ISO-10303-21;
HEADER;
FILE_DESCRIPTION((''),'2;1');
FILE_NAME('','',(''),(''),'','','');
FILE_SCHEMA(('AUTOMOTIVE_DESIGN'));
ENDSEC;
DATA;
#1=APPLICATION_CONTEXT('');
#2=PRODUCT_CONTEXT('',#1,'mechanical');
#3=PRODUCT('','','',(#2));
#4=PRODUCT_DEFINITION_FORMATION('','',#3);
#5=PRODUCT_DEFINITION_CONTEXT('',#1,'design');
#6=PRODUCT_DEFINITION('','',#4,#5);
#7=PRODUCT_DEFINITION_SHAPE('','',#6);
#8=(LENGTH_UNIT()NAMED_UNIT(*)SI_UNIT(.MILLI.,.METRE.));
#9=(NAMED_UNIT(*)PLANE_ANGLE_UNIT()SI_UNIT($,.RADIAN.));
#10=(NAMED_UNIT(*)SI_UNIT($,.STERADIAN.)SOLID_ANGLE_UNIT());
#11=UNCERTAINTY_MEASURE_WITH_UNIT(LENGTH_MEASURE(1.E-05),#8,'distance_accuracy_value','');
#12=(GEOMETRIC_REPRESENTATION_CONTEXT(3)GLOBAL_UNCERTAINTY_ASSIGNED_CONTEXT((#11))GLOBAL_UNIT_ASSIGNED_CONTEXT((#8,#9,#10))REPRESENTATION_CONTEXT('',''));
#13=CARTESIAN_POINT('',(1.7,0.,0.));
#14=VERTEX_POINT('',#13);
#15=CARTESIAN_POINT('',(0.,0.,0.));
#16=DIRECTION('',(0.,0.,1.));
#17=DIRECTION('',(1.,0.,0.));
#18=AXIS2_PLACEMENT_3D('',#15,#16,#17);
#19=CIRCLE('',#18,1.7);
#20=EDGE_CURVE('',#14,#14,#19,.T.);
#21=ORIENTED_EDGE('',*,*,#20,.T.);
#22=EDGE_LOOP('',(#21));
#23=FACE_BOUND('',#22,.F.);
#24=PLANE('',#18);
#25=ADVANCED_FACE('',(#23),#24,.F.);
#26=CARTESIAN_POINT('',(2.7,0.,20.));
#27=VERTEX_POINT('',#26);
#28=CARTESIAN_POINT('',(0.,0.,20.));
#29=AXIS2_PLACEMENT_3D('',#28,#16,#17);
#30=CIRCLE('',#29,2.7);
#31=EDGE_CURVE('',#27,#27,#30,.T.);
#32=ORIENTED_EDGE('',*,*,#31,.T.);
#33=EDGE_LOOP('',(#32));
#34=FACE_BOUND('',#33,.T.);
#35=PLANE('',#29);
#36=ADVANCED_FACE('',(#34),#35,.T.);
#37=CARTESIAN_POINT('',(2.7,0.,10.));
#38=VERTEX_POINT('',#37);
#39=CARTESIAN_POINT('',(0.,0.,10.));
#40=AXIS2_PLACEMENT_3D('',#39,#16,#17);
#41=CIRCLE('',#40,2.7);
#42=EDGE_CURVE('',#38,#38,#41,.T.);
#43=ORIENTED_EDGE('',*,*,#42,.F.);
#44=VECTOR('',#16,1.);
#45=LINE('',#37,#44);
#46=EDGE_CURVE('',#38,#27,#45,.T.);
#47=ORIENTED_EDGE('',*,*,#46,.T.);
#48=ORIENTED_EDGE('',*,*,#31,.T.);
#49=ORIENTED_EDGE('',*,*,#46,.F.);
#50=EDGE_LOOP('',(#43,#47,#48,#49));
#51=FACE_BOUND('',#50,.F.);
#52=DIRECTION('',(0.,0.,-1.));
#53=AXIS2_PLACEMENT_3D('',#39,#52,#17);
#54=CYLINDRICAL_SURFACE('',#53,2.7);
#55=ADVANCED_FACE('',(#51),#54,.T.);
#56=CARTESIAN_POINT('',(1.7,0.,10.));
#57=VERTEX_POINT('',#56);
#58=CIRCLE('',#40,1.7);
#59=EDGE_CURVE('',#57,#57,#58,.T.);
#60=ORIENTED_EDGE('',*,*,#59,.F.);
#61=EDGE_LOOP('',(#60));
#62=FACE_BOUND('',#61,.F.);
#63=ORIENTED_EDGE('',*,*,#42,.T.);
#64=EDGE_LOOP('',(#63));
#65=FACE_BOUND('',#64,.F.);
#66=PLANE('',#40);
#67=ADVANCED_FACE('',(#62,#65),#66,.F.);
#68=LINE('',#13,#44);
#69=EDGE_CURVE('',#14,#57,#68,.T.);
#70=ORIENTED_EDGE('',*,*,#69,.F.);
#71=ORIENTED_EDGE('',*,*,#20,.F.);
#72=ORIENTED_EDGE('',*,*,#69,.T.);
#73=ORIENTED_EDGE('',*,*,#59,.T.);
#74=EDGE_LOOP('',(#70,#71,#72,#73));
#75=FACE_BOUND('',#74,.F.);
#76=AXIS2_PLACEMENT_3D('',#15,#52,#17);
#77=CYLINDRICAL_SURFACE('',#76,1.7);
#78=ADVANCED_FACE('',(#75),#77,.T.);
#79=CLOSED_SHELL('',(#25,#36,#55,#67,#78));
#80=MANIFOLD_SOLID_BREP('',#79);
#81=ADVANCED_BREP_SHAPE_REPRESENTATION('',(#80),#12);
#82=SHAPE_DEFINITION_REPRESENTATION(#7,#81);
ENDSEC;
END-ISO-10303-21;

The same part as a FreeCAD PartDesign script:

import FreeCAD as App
import Part
import Sketcher

V = App.Vector

doc = App.newDocument("Part")
body = doc.addObject("PartDesign::Body", "Body")

# Sketch on XY plane
sketch1 = body.newObject("Sketcher::SketchObject", "Sketch")
sketch1.AttachmentSupport = (doc.getObject("XY_Plane"), [""])
sketch1.MapMode = "FlatFace"
sketch1.AttachmentOffset = App.Placement(V(0, 0, 10), App.Rotation())
sketch1.addGeometry(Part.Circle(V(0, 0, 0), V(0, 0, 1), 2.7), False)
sketch1.addConstraint([
    Sketcher.Constraint("Coincident", 0, 3, -1, 1),
    Sketcher.Constraint("Diameter", 0, 5.4),
])
pad1 = body.newObject("PartDesign::Pad", "Pad")
pad1.Profile = sketch1
pad1.Length = 10
body2 = doc.addObject("PartDesign::Body", "Body001")

# Sketch on XY plane
sketch2 = body2.newObject("Sketcher::SketchObject", "Sketch001")
sketch2.AttachmentSupport = (doc.getObject("XY_Plane001"), [""])
sketch2.MapMode = "FlatFace"
sketch2.addGeometry(Part.Circle(V(0, 0, 0), V(0, 0, 1), 1.7), False)
sketch2.addConstraint([
    Sketcher.Constraint("Coincident", 0, 3, -1, 1),
    Sketcher.Constraint("Diameter", 0, 3.4),
])
pad2 = body2.newObject("PartDesign::Pad", "Pad001")
pad2.Profile = sketch2
pad2.Length = 10
doc.recompute()

boolean = body2.newObject("PartDesign::Boolean", "Boolean")
boolean.Type = "Fuse"
boolean.addObjects([body])

doc.recompute()
